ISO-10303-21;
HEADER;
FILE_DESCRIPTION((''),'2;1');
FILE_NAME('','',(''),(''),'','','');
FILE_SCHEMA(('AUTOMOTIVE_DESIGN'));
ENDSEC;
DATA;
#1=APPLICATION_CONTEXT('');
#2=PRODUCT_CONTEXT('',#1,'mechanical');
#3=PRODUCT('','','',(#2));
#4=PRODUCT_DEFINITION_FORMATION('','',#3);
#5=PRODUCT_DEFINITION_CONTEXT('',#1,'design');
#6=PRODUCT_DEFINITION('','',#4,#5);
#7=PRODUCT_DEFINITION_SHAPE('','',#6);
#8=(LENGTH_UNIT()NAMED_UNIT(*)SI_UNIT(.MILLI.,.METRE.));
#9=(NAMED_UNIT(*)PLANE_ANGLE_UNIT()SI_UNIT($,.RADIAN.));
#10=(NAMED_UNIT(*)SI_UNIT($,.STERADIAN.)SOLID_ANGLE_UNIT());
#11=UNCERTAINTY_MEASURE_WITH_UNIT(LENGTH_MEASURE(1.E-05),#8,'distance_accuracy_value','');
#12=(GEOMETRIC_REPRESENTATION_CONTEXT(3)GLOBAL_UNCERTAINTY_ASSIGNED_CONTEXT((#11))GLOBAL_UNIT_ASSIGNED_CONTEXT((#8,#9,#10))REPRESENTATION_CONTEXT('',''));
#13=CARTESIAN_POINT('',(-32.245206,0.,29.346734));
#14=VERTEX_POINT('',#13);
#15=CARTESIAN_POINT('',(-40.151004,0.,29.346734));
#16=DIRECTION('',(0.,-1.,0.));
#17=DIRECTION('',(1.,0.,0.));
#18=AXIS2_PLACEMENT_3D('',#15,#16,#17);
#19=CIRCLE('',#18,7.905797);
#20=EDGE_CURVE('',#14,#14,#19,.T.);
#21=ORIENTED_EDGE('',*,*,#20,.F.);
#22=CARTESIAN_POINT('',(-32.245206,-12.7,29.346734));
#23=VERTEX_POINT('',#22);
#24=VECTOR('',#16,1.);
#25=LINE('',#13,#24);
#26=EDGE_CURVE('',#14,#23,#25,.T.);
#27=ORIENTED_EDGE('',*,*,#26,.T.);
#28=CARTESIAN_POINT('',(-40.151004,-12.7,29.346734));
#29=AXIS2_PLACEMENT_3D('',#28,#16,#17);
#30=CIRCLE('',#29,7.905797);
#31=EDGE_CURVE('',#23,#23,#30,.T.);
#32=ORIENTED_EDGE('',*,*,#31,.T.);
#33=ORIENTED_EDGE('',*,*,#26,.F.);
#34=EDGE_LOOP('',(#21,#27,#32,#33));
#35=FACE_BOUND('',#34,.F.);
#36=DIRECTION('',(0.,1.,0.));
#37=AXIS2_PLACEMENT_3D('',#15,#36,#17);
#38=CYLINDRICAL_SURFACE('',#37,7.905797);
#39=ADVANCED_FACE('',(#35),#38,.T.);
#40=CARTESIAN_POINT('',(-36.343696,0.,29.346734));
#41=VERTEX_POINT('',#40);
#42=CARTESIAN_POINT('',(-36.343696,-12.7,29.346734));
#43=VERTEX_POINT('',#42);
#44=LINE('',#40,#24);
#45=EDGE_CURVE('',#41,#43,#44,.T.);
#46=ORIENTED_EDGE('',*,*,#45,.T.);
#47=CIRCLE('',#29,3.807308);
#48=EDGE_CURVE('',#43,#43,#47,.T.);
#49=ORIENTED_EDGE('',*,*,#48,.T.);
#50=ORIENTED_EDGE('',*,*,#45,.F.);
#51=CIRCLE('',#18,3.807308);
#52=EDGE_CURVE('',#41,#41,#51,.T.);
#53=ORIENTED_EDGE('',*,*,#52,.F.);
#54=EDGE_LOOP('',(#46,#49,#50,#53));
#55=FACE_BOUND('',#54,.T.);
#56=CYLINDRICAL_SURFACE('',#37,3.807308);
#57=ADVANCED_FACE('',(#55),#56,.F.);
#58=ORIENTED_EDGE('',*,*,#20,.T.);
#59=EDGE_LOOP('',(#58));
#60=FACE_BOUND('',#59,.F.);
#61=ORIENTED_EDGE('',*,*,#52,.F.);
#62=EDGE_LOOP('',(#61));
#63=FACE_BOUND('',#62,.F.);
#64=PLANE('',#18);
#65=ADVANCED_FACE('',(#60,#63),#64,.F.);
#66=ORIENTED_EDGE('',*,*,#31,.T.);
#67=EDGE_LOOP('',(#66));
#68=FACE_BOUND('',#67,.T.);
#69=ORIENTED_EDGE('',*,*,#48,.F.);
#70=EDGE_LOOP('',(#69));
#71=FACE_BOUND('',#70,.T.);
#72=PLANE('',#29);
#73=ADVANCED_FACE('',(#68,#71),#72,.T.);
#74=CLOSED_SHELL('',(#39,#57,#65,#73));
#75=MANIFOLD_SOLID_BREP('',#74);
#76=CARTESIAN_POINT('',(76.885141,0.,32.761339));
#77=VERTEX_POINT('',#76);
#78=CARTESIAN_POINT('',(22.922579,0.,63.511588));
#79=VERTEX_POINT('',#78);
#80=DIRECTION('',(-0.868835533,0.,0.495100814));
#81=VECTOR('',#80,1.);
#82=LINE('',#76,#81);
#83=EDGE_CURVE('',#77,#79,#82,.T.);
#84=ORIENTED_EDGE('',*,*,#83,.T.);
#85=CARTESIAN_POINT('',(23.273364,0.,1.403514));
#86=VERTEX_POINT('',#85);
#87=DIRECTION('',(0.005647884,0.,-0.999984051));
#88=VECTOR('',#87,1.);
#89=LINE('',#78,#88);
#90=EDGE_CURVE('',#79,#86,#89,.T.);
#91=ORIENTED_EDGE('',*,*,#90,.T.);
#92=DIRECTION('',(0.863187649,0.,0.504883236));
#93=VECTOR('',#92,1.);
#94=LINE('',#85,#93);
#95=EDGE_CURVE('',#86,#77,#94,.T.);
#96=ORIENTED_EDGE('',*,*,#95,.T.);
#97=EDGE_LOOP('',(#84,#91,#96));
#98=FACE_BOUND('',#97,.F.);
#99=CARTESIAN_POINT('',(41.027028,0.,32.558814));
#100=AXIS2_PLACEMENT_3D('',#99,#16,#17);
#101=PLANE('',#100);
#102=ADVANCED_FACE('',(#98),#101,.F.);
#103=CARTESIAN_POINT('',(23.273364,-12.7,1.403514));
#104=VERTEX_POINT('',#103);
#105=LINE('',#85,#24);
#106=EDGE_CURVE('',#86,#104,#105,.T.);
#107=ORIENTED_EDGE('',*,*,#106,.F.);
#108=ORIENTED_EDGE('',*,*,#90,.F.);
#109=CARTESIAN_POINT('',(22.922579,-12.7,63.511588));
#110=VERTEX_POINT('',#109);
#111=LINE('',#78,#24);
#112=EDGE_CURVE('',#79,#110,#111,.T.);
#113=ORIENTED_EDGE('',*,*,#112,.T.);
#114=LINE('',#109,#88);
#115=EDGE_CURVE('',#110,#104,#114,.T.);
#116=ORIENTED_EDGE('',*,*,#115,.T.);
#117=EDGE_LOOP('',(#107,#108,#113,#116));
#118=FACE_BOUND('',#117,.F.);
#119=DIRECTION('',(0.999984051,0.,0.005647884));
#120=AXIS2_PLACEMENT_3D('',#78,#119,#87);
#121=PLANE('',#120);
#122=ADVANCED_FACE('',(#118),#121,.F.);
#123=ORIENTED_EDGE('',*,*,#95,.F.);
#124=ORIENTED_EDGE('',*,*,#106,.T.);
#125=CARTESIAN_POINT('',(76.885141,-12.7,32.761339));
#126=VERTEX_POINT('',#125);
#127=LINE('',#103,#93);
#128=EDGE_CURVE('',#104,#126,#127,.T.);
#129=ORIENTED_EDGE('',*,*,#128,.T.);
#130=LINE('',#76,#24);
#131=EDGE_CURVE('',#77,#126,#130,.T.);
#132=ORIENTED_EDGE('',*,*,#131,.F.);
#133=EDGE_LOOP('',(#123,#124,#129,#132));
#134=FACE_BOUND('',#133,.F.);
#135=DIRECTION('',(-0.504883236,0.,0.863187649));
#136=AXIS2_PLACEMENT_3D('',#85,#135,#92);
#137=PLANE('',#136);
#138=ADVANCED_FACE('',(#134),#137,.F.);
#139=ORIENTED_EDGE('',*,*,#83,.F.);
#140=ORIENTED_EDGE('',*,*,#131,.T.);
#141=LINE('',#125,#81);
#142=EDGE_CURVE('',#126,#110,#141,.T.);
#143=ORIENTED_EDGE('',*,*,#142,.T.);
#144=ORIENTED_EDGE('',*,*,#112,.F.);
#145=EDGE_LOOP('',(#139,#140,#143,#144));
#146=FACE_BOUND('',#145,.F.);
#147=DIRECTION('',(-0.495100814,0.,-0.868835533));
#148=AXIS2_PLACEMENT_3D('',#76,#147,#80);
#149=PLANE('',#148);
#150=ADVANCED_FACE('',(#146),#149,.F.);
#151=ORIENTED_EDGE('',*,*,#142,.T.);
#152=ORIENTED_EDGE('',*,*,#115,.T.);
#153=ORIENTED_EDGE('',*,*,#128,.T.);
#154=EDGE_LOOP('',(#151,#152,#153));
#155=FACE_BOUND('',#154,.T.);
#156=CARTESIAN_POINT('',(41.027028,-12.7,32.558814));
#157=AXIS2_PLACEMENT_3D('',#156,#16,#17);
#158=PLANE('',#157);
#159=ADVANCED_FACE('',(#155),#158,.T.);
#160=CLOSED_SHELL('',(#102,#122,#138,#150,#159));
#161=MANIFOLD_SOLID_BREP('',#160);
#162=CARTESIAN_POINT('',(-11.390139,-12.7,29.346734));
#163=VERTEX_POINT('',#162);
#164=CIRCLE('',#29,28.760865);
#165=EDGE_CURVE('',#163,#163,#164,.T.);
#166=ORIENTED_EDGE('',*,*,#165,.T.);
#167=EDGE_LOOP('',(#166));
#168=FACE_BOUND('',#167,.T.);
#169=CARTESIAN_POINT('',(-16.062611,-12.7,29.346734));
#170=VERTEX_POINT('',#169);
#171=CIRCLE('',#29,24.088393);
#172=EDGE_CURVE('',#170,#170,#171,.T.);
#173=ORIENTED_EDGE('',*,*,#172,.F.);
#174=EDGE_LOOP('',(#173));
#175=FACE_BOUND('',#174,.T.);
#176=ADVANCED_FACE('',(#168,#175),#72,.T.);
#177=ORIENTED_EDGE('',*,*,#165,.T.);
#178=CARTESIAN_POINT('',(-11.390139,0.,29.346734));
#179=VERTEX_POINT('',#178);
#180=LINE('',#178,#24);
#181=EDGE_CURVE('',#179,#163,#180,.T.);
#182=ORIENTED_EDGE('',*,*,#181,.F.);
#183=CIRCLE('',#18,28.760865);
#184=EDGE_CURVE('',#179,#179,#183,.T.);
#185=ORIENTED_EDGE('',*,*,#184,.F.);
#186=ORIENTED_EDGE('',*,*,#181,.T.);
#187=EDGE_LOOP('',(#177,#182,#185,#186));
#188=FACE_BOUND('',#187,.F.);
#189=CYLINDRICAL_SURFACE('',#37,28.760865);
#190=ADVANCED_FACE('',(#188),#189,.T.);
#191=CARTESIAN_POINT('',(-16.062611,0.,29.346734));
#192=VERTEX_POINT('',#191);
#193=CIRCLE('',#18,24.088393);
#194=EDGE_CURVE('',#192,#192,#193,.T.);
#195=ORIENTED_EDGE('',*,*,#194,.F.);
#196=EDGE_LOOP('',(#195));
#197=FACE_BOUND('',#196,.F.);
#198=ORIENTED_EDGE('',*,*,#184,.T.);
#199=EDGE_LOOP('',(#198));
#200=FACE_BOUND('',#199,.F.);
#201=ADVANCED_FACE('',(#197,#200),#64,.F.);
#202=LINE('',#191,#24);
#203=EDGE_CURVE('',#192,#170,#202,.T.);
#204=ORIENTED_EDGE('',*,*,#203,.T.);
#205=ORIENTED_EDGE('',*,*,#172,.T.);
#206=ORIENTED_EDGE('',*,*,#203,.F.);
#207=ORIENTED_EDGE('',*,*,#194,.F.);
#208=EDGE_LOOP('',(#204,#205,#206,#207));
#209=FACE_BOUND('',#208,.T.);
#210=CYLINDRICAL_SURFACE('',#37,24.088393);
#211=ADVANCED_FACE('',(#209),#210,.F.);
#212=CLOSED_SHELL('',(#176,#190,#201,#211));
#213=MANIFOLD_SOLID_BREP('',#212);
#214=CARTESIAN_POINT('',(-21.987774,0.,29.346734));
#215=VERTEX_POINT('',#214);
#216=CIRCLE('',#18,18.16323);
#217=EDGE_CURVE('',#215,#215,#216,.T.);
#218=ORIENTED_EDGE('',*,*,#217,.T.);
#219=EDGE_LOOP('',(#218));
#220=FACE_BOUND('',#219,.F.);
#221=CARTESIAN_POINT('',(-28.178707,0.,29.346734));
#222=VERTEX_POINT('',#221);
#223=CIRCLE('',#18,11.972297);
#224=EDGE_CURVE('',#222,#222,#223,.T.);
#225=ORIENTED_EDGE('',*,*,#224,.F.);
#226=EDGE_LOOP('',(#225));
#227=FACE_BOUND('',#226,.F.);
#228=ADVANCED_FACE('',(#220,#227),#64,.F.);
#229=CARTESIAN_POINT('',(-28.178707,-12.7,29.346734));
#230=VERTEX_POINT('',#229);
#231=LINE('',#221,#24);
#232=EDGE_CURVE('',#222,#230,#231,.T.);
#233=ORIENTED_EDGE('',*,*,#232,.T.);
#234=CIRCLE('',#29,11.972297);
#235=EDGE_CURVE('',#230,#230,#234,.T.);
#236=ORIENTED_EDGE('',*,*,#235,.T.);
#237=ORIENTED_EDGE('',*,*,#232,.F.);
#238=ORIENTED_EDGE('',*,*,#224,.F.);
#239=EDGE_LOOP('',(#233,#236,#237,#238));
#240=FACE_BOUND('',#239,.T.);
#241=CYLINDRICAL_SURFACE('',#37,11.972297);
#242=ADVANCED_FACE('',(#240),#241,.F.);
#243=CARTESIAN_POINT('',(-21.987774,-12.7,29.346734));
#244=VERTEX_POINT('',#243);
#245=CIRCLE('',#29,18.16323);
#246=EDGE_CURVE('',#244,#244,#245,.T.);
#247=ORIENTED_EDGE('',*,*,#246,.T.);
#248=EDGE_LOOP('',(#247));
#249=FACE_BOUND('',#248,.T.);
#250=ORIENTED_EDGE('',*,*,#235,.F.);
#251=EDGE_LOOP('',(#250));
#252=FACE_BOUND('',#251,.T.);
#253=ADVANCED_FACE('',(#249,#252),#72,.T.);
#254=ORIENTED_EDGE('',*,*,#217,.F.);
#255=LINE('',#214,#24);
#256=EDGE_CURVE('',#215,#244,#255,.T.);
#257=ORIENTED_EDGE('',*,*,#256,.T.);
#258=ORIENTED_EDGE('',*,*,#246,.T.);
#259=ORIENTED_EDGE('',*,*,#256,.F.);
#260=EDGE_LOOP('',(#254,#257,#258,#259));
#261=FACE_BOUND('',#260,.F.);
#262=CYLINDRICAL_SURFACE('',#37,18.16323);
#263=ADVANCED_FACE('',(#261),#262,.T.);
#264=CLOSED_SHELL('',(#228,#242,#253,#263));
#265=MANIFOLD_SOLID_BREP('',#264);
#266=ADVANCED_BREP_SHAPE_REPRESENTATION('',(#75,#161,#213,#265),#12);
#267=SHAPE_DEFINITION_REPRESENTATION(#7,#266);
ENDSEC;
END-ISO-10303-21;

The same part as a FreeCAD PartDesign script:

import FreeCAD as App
import Part
import Sketcher

V = App.Vector
Q = App.Units.Quantity


def add_polygon(sketch, points):
    """Adds a closed chain of lines whose ends are joined by coincident constraints."""
    first, n = sketch.GeometryCount, len(points)
    for a, b in zip(points, points[1:] + points[:1]):
        sketch.addGeometry(Part.LineSegment(App.Vector(*a, 0), App.Vector(*b, 0)), False)
    for i in range(n):
        sketch.addConstraint(Sketcher.Constraint("Coincident", first + i, 2, first + (i + 1) % n, 1))

doc = App.newDocument("Part")
body = doc.addObject("PartDesign::Body", "Body")

# Sketch on XZ plane
sketch1 = doc.addObject("Sketcher::SketchObject", "Sketch")
body.addObject(sketch1)
sketch1.AttachmentSupport = (doc.XZ_Plane, [""])
sketch1.MapMode = "FlatFace"
sketch1.addGeometry(Part.Circle(V(-40, 29, 0), V(0, 0, 1), 18), False)
sketch1.addGeometry(Part.Circle(V(-40, 29, 0), V(0, 0, 1), 12), False)
sketch1.addConstraint(Sketcher.Constraint("Coincident", 1, 3, 0, 3))
sketch1.addConstraint(Sketcher.Constraint("Diameter", 0, Q("36.32646 mm")))
sketch1.addConstraint(Sketcher.Constraint("Diameter", 1, Q("23.944594 mm")))
sketch1.addConstraint(Sketcher.Constraint("DistanceX", 0, 3, -1, 1, Q("40.151004 mm")))
sketch1.addConstraint(Sketcher.Constraint("DistanceY", -1, 1, 0, 3, Q("29.346734 mm")))
pad1 = doc.addObject("PartDesign::Pad", "Pad")
body.addObject(pad1)
pad1.Profile = sketch1
pad1.Length = Q("0.5 in")
body2 = doc.addObject("PartDesign::Body", "Body001")

# Sketch on XZ plane
sketch2 = doc.addObject("Sketcher::SketchObject", "Sketch001")
body2.addObject(sketch2)
sketch2.AttachmentSupport = (doc.getObject("XZ_Plane001"), [""])
sketch2.MapMode = "FlatFace"
sketch2.addGeometry(Part.Circle(V(-40, 29, 0), V(0, 0, 1), 29), False)
sketch2.addGeometry(Part.Circle(V(-40, 29, 0), V(0, 0, 1), 24), False)
sketch2.addConstraint(Sketcher.Constraint("Coincident", 1, 3, 0, 3))
sketch2.addConstraint(Sketcher.Constraint("Diameter", 0, Q("57.52173 mm")))
sketch2.addConstraint(Sketcher.Constraint("Diameter", 1, Q("48.176786 mm")))
sketch2.addConstraint(Sketcher.Constraint("DistanceX", 0, 3, -1, 1, Q("40.151004 mm")))
sketch2.addConstraint(Sketcher.Constraint("DistanceY", -1, 1, 0, 3, Q("29.346734 mm")))
pad2 = doc.addObject("PartDesign::Pad", "Pad001")
body2.addObject(pad2)
pad2.Profile = sketch2
pad2.Length = Q("0.5 in")
body3 = doc.addObject("PartDesign::Body", "Body002")

# Sketch on XZ plane
sketch3 = doc.addObject("Sketcher::SketchObject", "Sketch002")
body3.addObject(sketch3)
sketch3.AttachmentSupport = (doc.getObject("XZ_Plane002"), [""])
sketch3.MapMode = "FlatFace"
sketch3.addGeometry(Part.Circle(V(-40.2, 29.3, 0), V(0, 0, 1), 7.9), False)
sketch3.addGeometry(Part.Circle(V(-40.2, 29.3, 0), V(0, 0, 1), 3.8), False)
sketch3.addConstraint(Sketcher.Constraint("Coincident", 1, 3, 0, 3))
sketch3.addConstraint(Sketcher.Constraint("Diameter", 0, Q("15.811595 mm")))
sketch3.addConstraint(Sketcher.Constraint("Diameter", 1, Q("7.614615 mm")))
sketch3.addConstraint(Sketcher.Constraint("DistanceX", 0, 3, -1, 1, Q("40.151004 mm")))
sketch3.addConstraint(Sketcher.Constraint("DistanceY", -1, 1, 0, 3, Q("29.346734 mm")))
pad3 = doc.addObject("PartDesign::Pad", "Pad002")
body3.addObject(pad3)
pad3.Profile = sketch3
pad3.Length = Q("0.5 in")
body4 = doc.addObject("PartDesign::Body", "Body003")

# Sketch on XZ plane
sketch4 = doc.addObject("Sketcher::SketchObject", "Sketch003")
body4.addObject(sketch4)
sketch4.AttachmentSupport = (doc.getObject("XZ_Plane003"), [""])
sketch4.MapMode = "FlatFace"
add_polygon(sketch4, [(23, 1), (77, 33), (23, 64)])  # lines 0-2
sketch4.addConstraint(Sketcher.Constraint("Equal", 0, 1))
sketch4.addConstraint(Sketcher.Constraint("Equal", 1, 2))
sketch4.addConstraint(Sketcher.Constraint("DistanceX", 2, 2, 0, 2, Q("2.1106999 in")))
sketch4.addConstraint(Sketcher.Constraint("DistanceX", -1, 1, 0, 2, Q("76.885141 mm")))
sketch4.addConstraint(Sketcher.Constraint("DistanceY", -1, 1, 0, 2, Q("32.761339 mm")))
sketch4.addConstraint(Sketcher.Constraint("DistanceX", -1, 1, 1, 2, Q("22.922579 mm")))
pad4 = doc.addObject("PartDesign::Pad", "Pad003")
body4.addObject(pad4)
pad4.Profile = sketch4
pad4.Length = Q("0.5 in")

doc.recompute()
